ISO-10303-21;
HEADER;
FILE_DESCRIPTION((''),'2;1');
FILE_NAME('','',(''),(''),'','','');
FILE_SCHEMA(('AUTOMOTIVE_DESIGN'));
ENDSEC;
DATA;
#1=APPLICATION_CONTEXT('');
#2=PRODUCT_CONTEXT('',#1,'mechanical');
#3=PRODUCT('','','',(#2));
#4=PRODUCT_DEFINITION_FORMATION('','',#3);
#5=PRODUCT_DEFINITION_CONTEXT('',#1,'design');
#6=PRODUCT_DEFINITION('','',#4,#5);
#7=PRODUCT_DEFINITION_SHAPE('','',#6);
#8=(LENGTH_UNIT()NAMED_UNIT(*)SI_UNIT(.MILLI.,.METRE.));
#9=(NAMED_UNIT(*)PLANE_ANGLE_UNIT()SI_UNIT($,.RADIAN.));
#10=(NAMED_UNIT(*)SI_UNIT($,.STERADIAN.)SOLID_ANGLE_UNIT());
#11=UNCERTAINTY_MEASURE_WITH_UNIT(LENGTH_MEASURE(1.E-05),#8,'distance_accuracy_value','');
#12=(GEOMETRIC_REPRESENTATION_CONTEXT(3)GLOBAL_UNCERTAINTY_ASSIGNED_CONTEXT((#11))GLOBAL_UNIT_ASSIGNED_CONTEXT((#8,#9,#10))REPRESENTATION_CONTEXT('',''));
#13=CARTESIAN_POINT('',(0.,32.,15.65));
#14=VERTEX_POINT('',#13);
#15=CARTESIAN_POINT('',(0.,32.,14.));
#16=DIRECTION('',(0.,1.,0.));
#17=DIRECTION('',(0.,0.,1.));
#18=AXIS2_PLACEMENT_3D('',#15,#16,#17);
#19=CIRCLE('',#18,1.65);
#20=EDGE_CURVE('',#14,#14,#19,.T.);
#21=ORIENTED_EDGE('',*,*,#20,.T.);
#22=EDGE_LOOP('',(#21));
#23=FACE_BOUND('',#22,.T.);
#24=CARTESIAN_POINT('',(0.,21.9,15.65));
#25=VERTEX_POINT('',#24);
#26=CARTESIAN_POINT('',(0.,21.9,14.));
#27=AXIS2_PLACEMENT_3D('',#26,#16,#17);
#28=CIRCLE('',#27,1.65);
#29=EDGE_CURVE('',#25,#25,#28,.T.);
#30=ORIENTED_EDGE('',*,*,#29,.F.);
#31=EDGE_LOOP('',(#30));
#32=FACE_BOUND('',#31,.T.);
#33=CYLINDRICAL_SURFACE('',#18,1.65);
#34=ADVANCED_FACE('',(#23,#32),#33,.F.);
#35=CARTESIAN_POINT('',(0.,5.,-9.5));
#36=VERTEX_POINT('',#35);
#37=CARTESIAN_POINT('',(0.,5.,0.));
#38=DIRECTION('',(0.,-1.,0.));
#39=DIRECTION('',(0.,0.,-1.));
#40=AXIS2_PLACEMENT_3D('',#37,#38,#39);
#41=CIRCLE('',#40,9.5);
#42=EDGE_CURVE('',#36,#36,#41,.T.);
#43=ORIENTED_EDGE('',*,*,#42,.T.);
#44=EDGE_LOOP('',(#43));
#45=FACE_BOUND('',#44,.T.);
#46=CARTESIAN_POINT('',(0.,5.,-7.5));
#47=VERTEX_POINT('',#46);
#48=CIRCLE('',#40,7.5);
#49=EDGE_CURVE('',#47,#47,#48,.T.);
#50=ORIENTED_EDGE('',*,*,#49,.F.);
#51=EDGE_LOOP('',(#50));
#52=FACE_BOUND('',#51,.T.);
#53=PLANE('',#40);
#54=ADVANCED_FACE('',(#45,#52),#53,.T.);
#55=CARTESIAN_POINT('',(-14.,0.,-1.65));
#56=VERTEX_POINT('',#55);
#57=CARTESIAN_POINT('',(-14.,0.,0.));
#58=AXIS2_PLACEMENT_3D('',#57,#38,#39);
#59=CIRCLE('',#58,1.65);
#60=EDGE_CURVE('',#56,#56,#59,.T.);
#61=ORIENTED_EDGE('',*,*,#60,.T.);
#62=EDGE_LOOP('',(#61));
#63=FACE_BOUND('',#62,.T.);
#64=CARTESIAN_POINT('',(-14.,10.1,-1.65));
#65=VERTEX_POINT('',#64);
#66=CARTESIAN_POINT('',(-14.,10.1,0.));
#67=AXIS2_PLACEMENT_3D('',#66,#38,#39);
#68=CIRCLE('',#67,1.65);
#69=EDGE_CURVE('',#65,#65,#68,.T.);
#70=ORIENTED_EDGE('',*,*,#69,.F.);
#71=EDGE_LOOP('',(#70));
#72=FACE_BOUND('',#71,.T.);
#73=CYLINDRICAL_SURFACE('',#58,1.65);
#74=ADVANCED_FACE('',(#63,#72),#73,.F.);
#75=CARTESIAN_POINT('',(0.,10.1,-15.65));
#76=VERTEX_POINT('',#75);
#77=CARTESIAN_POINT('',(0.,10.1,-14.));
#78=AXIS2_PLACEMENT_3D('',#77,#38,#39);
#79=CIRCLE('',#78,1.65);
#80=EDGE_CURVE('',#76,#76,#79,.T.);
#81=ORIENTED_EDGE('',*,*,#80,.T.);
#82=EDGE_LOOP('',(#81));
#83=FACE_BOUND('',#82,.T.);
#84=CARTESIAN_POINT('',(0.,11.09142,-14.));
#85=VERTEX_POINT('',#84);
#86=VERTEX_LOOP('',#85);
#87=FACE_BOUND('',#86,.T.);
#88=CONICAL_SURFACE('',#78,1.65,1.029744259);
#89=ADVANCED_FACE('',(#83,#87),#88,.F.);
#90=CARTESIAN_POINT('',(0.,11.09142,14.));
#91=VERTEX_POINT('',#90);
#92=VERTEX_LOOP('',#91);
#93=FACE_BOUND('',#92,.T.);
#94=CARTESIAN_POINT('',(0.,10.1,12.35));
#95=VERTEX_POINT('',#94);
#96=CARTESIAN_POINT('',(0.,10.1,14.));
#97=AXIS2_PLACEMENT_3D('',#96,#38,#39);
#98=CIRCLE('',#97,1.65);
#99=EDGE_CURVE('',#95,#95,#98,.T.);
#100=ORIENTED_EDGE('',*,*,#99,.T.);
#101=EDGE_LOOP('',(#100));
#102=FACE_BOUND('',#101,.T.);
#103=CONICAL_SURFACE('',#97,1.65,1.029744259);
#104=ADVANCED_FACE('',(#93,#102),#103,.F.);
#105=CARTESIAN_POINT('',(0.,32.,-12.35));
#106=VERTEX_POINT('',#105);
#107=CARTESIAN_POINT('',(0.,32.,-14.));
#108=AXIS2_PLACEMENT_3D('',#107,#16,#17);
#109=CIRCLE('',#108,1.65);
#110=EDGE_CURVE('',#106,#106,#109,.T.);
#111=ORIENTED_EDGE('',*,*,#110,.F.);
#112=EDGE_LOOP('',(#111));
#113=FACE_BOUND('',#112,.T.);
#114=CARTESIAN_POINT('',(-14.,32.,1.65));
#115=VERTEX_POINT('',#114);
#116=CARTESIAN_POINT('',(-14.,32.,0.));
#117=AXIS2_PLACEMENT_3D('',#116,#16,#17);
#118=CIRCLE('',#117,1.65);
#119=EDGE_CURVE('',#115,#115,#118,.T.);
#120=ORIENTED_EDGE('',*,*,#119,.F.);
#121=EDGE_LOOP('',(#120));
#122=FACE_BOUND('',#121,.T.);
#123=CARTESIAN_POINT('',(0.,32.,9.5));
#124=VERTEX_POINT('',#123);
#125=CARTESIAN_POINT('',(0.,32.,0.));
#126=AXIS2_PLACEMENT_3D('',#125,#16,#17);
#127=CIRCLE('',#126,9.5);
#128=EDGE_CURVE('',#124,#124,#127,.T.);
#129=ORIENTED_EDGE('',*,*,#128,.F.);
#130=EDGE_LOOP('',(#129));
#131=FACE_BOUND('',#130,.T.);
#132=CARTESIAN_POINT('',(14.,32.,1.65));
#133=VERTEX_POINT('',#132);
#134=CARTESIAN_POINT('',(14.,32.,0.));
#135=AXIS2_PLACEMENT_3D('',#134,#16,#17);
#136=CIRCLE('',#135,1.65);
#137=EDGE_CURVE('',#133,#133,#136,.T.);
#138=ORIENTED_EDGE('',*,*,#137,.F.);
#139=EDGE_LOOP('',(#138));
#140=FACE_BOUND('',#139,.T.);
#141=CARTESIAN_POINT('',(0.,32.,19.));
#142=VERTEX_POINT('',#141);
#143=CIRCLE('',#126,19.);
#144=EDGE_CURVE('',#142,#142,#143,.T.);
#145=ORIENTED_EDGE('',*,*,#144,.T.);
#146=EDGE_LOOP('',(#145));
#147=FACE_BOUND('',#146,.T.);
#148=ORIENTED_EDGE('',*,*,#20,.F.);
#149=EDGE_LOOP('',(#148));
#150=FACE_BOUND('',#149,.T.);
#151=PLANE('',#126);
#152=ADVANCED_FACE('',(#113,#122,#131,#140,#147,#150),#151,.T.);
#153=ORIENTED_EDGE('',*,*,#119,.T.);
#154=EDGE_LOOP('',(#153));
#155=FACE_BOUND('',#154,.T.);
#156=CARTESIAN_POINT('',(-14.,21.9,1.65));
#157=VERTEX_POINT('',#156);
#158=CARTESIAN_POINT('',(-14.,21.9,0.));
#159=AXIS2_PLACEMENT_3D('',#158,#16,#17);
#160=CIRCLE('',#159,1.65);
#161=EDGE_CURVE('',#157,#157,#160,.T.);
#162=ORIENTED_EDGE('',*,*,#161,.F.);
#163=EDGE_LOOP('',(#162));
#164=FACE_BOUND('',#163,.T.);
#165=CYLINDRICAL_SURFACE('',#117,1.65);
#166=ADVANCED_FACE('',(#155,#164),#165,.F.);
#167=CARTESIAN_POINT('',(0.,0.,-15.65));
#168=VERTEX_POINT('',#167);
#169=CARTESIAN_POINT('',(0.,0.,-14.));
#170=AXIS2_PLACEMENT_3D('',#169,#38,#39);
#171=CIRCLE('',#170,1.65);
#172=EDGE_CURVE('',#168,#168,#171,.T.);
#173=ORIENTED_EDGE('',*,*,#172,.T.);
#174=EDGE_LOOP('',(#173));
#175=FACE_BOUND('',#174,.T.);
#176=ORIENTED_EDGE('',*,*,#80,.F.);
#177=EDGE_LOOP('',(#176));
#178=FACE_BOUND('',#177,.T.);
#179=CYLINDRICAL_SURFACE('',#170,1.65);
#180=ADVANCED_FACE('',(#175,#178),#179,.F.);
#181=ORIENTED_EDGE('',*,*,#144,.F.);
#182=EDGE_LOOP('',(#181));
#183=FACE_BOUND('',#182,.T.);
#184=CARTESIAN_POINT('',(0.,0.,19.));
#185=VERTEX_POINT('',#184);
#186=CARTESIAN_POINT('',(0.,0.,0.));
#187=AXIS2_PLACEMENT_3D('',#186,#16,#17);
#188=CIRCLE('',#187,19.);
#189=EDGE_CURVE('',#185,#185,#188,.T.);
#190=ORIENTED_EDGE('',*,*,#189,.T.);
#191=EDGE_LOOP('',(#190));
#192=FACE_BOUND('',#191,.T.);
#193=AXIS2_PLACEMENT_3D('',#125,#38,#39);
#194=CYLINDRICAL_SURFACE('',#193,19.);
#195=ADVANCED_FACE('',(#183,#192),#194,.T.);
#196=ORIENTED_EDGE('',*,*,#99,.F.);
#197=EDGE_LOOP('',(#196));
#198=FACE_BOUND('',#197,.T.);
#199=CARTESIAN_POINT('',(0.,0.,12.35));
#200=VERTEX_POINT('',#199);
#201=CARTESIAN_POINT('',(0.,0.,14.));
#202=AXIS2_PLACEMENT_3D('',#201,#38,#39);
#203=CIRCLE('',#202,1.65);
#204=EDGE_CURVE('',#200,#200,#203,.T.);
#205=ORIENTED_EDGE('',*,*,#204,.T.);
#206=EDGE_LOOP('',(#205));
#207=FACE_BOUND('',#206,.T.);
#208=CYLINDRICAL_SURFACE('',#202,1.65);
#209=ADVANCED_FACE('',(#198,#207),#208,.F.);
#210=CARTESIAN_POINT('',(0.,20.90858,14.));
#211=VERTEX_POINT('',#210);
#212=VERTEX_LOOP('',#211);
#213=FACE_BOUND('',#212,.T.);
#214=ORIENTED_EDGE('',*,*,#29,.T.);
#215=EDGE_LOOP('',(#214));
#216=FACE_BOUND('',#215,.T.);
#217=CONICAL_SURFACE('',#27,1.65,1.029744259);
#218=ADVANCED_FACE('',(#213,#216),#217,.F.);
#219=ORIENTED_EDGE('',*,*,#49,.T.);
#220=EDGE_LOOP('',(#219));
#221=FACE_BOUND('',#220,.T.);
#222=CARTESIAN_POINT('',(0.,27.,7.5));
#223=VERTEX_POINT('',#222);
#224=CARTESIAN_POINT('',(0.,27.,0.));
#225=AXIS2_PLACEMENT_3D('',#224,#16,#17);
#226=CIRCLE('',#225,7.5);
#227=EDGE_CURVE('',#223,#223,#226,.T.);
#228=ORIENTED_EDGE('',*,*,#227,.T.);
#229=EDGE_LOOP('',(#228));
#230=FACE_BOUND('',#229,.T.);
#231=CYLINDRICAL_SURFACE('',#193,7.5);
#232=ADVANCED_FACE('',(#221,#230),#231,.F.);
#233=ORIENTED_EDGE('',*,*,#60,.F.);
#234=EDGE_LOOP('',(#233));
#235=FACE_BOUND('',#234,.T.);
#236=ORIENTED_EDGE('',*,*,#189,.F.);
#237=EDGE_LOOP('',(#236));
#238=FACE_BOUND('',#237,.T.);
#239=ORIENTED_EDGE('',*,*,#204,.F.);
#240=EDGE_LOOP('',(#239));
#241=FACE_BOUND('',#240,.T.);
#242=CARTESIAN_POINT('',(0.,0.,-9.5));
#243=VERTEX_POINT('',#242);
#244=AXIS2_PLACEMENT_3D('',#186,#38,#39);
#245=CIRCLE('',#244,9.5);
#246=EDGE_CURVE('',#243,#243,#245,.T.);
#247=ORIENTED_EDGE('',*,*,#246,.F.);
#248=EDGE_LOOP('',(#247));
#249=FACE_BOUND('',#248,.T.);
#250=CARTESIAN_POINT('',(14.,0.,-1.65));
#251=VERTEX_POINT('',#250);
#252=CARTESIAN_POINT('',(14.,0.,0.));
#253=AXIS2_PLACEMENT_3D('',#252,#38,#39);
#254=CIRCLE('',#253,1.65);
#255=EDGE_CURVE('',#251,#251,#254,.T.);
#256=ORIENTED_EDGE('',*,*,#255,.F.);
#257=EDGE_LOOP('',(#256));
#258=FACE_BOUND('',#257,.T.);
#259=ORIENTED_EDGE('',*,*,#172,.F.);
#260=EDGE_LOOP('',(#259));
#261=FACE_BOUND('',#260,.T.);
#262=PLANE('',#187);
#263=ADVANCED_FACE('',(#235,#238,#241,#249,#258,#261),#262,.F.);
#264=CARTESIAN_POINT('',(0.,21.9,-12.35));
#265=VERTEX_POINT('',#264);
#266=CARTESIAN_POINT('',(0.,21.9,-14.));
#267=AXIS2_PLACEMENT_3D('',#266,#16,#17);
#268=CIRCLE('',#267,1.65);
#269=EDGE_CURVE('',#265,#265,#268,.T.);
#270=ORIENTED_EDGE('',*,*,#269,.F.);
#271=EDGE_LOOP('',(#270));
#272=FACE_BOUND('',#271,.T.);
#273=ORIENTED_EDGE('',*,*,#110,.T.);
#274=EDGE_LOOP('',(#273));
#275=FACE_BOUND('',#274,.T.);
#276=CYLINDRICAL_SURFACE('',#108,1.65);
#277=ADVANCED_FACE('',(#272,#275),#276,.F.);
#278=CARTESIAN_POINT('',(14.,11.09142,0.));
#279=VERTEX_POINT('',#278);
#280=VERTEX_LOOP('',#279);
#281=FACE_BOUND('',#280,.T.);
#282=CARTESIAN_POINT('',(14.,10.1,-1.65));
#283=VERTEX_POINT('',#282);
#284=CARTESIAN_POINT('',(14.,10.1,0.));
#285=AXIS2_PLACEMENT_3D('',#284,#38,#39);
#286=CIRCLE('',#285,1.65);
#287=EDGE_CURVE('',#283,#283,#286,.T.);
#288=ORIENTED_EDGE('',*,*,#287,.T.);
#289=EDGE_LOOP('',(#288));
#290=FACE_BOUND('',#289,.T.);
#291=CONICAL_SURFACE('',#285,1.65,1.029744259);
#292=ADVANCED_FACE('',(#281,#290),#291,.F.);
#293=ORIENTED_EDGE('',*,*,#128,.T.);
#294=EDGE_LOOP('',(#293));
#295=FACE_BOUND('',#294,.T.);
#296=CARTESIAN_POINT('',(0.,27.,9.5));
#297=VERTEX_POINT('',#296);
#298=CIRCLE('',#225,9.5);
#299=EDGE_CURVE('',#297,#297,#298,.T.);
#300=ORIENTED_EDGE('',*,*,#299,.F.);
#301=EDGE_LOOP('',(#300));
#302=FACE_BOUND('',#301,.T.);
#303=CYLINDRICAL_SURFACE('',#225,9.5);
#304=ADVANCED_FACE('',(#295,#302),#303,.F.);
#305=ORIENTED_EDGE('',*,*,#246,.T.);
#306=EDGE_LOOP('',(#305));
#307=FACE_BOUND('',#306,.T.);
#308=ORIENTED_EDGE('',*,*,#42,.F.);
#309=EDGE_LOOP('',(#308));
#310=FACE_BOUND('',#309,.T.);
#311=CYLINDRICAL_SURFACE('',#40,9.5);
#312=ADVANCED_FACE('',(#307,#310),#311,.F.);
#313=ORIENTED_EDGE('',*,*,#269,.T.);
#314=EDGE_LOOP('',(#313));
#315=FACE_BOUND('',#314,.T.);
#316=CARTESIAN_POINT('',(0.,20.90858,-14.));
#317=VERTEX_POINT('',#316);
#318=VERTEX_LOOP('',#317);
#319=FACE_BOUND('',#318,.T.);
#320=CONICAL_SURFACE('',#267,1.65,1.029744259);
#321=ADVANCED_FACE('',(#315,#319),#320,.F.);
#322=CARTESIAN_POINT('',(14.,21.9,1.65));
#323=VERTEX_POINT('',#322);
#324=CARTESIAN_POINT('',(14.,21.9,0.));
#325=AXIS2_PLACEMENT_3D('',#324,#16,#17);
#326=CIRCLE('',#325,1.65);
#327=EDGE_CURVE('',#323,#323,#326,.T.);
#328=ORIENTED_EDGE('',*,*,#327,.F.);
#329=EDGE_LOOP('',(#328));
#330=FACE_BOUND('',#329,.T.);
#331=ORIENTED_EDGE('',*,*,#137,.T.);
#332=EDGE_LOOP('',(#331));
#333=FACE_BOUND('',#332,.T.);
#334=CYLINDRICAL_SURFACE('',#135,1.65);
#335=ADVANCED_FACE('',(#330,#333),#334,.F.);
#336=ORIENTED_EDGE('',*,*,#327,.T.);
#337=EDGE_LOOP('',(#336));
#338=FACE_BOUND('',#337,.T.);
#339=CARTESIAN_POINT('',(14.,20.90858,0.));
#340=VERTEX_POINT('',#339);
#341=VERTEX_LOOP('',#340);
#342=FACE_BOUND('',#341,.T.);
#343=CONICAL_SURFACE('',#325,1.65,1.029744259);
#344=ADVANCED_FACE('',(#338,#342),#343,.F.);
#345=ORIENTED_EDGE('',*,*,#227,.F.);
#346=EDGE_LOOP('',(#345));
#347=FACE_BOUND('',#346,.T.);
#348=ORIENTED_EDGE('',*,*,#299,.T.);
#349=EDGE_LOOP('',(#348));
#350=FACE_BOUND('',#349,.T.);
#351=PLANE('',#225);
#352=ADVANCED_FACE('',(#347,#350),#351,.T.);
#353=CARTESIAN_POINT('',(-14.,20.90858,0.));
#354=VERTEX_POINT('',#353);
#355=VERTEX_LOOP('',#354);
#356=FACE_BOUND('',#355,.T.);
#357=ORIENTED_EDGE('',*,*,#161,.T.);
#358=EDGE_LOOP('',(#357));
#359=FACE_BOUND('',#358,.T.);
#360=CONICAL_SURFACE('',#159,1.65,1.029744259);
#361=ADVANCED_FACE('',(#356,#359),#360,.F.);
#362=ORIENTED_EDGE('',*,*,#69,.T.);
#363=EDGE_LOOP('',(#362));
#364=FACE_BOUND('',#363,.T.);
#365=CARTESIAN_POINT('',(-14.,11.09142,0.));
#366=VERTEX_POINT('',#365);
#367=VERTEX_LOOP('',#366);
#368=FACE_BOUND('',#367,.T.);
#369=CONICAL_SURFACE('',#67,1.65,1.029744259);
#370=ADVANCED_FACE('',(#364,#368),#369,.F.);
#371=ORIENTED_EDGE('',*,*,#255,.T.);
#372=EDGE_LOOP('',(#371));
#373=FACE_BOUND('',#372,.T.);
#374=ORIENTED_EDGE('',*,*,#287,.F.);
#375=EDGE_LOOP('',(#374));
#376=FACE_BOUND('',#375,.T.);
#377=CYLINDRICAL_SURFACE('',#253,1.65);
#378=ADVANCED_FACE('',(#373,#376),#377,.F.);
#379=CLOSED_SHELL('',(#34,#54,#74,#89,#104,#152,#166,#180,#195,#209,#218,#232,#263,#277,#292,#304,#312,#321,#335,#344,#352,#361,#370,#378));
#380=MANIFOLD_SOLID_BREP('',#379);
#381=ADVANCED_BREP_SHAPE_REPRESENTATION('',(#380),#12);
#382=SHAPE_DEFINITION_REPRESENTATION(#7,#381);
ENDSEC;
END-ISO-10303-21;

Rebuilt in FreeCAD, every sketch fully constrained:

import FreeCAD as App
import Part
import Sketcher

doc = App.newDocument("Part")
body = doc.addObject("PartDesign::Body", "Body")

sketch1 = body.newObject("Sketcher::SketchObject", "Sketch")
sketch1.AttachmentSupport = (doc.getObject("XZ_Plane"), [""])
sketch1.MapMode = "FlatFace"
sketch1.addGeometry(Part.Circle(App.Vector(0, 0, 0), App.Vector(0, 0, 1), 19), False)
sketch1.addGeometry(Part.Circle(App.Vector(0, 0, 0), App.Vector(0, 0, 1), 8), False)
sketch1.addConstraint(Sketcher.Constraint("Coincident", 0, 3, -1, 1))
sketch1.addConstraint(Sketcher.Constraint("Coincident", 1, 3, -1, 1))
sketch1.addConstraint(Sketcher.Constraint("Diameter", 0, 38.0))
sketch1.addConstraint(Sketcher.Constraint("Diameter", 1, 15.0))
pad1 = body.newObject("PartDesign::Pad", "Pad")
pad1.Profile = sketch1
pad1.Length = 32
pad1.Reversed = True

sketch2 = body.newObject("Sketcher::SketchObject", "Sketch001")
sketch2.AttachmentSupport = (doc.getObject("XZ_Plane"), [""])
sketch2.MapMode = "FlatFace"
sketch2.AttachmentOffset = App.Placement(App.Vector(0, 0, -32), App.Rotation())
sketch2.addGeometry(Part.Circle(App.Vector(0, 0, 0), App.Vector(0, 0, 1), 10), False)
sketch2.addConstraint(Sketcher.Constraint("Coincident", 0, 3, -1, 1))
sketch2.addConstraint(Sketcher.Constraint("Diameter", 0, 19.0))
pocket1 = body.newObject("PartDesign::Pocket", "Pocket")
pocket1.Profile = sketch2
pocket1.Length = 5
pocket1.Reversed = True

sketch3 = body.newObject("Sketcher::SketchObject", "Sketch002")
sketch3.AttachmentSupport = (doc.getObject("XZ_Plane"), [""])
sketch3.MapMode = "FlatFace"
sketch3.AttachmentOffset = App.Placement(App.Vector(0, 0, -5), App.Rotation())
sketch3.addGeometry(Part.Circle(App.Vector(0, 0, 0), App.Vector(0, 0, 1), 10), False)
sketch3.addConstraint(Sketcher.Constraint("Coincident", 0, 3, -1, 1))
sketch3.addConstraint(Sketcher.Constraint("Diameter", 0, 19.0))
pocket2 = body.newObject("PartDesign::Pocket", "Pocket001")
pocket2.Profile = sketch3
pocket2.Length = 5
pocket2.Reversed = True

sketch4 = body.newObject("Sketcher::SketchObject", "Sketch003")
sketch4.AttachmentSupport = (doc.getObject("XZ_Plane"), [""])
sketch4.MapMode = "FlatFace"
sketch4.addGeometry(Part.Circle(App.Vector(0, -14, 0), App.Vector(0, 0, 1), 1.6), False)
sketch4.addGeometry(Part.Circle(App.Vector(-14, 0, 0), App.Vector(0, 0, 1), 1.6), False)
sketch4.addGeometry(Part.Circle(App.Vector(0, 14, 0), App.Vector(0, 0, 1), 1.6), False)
sketch4.addGeometry(Part.Circle(App.Vector(14, 0, 0), App.Vector(0, 0, 1), 1.6), False)
sketch4.addConstraint(Sketcher.Constraint("Equal", 0, 1))
sketch4.addConstraint(Sketcher.Constraint("Equal", 1, 2))
sketch4.addConstraint(Sketcher.Constraint("Equal", 2, 3))
sketch4.addConstraint(Sketcher.Constraint("Symmetric", 0, 3, 2, 3, -1, 1))
sketch4.addConstraint(Sketcher.Constraint("Symmetric", 1, 3, 3, 3, -1, 1))
sketch4.addConstraint(Sketcher.Constraint("PointOnObject", 0, 3, -2))
sketch4.addConstraint(Sketcher.Constraint("PointOnObject", 1, 3, -1))
sketch4.addConstraint(Sketcher.Constraint("Diameter", 0, 3.3))
sketch4.addConstraint(Sketcher.Constraint("DistanceY", 0, 3, -1, 1, 14.0))
sketch4.addConstraint(Sketcher.Constraint("DistanceX", 1, 3, -1, 1, 14.0))
doc.recompute()
hole = body.newObject("PartDesign::Hole", "Hole")
hole.Profile = sketch4
hole.ThreadType = "None"
hole.Diameter = 3.3
hole.DepthType = "Dimension"
hole.Depth = 10.1
hole.DrillPoint = "Angled"
hole.DrillPointAngle = 118

sketch5 = body.newObject("Sketcher::SketchObject", "Sketch004")
sketch5.AttachmentSupport = (doc.getObject("XZ_Plane"), [""])
sketch5.MapMode = "FlatFace"
sketch5.AttachmentOffset = App.Placement(App.Vector(0, 0, -32), App.Rotation())
sketch5.addGeometry(Part.Circle(App.Vector(14, 0, 0), App.Vector(0, 0, 1), 1.6), False)
sketch5.addGeometry(Part.Circle(App.Vector(0, 14, 0), App.Vector(0, 0, 1), 1.6), False)
sketch5.addGeometry(Part.Circle(App.Vector(-14, 0, 0), App.Vector(0, 0, 1), 1.6), False)
sketch5.addGeometry(Part.Circle(App.Vector(0, -14, 0), App.Vector(0, 0, 1), 1.6), False)
sketch5.addConstraint(Sketcher.Constraint("Equal", 0, 1))
sketch5.addConstraint(Sketcher.Constraint("Equal", 1, 2))
sketch5.addConstraint(Sketcher.Constraint("Equal", 2, 3))
sketch5.addConstraint(Sketcher.Constraint("Symmetric", 0, 3, 2, 3, -1, 1))
sketch5.addConstraint(Sketcher.Constraint("Symmetric", 1, 3, 3, 3, -1, 1))
sketch5.addConstraint(Sketcher.Constraint("PointOnObject", 0, 3, -1))
sketch5.addConstraint(Sketcher.Constraint("PointOnObject", 1, 3, -2))
sketch5.addConstraint(Sketcher.Constraint("Diameter", 0, 3.3))
sketch5.addConstraint(Sketcher.Constraint("DistanceX", -1, 1, 0, 3, 14.0))
sketch5.addConstraint(Sketcher.Constraint("DistanceY", -1, 1, 1, 3, 14.0))
doc.recompute()
hole2 = body.newObject("PartDesign::Hole", "Hole001")
hole2.Profile = sketch5
hole2.ThreadType = "None"
hole2.Diameter = 3.3
hole2.DepthType = "Dimension"
hole2.Depth = 10.1
hole2.DrillPoint = "Angled"
hole2.DrillPointAngle = 118
hole2.Reversed = True

doc.recompute()
